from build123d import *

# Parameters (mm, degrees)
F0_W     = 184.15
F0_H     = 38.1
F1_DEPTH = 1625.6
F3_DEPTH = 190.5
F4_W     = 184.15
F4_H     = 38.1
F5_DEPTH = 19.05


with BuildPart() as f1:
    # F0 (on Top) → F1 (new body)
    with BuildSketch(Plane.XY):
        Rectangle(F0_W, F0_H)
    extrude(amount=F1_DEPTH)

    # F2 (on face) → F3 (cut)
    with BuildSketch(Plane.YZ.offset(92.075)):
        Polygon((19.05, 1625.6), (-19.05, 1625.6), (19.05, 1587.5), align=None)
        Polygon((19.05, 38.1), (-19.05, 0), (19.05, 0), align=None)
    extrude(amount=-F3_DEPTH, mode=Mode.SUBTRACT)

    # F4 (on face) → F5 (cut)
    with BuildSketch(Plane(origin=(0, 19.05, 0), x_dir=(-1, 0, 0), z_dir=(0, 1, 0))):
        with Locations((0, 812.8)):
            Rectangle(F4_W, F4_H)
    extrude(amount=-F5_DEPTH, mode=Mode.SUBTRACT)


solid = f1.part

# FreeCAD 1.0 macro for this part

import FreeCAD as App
import Part
import Sketcher
from FreeCAD import Vector
Q = App.Units.Quantity


def add_polygon(sketch, points):
    """Adds a closed chain of lines whose ends are joined by coincident constraints."""
    first, n = sketch.GeometryCount, len(points)
    for a, b in zip(points, points[1:] + points[:1]):
        sketch.addGeometry(Part.LineSegment(App.Vector(*a, 0), App.Vector(*b, 0)), False)
    for i in range(n):
        sketch.addConstraint(Sketcher.Constraint("Coincident", first + i, 2, first + (i + 1) % n, 1))

doc = App.newDocument("Part")
params = doc.addObject("Spreadsheet::Sheet", "Params")
for row, (alias, value) in enumerate([
    ("sketch1_height", "1.5 in"),
    ("sketch1_width", "7.25 in"),
    ("pad1_length", "64 in"),
    ("sketch2_width", "1.5 in"),
    ("pocket1_length", "7.5 in"),
    ("sketch3_height", "1.5 in"),
    ("sketch3_width", "7.25 in"),
    ("pocket2_length", "0.75 in"),
], start=1):
    params.set(f"A{row}", alias)
    params.set(f"B{row}", "=" + value)
    params.setAlias(f"B{row}", alias)

body = doc.addObject("PartDesign::Body", "Body")

sketch1 = doc.addObject("Sketcher::SketchObject", "Sketch")
body.addObject(sketch1)
sketch1.AttachmentSupport = (doc.XY_Plane, [""])
sketch1.MapMode = "FlatFace"
add_polygon(sketch1, [(-92.075, 19.05), (-92.075, -19.05), (92.075, -19.05), (92.075, 19.05)])
sketch1.addConstraint([
    Sketcher.Constraint("Vertical", 0),
    Sketcher.Constraint("Horizontal", 1),
    Sketcher.Constraint("Vertical", 2),
    Sketcher.Constraint("Horizontal", 3),
    Sketcher.Constraint("Symmetric", 0, 2, 2, 2, -1, 1),
    Sketcher.Constraint("DistanceY", 0, 2, 0, 1, Q("1.5 in")),
    Sketcher.Constraint("DistanceX", 1, 1, 1, 2, Q("7.25 in")),
])
sketch1.setExpression("Constraints[9]", "Params.sketch1_height")
sketch1.setExpression("Constraints[10]", "Params.sketch1_width")
pad1 = doc.addObject("PartDesign::Pad", "Pad")
body.addObject(pad1)
pad1.Profile = sketch1
pad1.setExpression("Length", "Params.pad1_length")

sketch2 = doc.addObject("Sketcher::SketchObject", "Sketch001")
body.addObject(sketch2)
sketch2.AttachmentSupport = (doc.YZ_Plane, [""])
sketch2.MapMode = "FlatFace"
sketch2.AttachmentOffset = App.Placement(Vector(0, 0, 3.625 * 25.4), App.Rotation())
add_polygon(sketch2, [(19.05, 1625.6), (-19.05, 1625.6), (19.05, 1587.5)])
add_polygon(sketch2, [(19.05, 38.1), (-19.05, 0), (19.05, 0)])
sketch2.addConstraint([
    Sketcher.Constraint("Horizontal", 0),
    Sketcher.Constraint("Vertical", 2),
    Sketcher.Constraint("Horizontal", 4),
    Sketcher.Constraint("Vertical", 5),
    Sketcher.Constraint("Symmetric", 3, 2, 4, 2, -1, 1),
    Sketcher.Constraint("Perpendicular", 1, 3),
    Sketcher.Constraint("Vertical", 0, 2, 3, 2),
    Sketcher.Constraint("Vertical", 2, 2, 4, 2),
    Sketcher.Constraint("Equal", 4, 2),
    Sketcher.Constraint("DistanceX", 0, 2, 0, 1, Q("1.5 in")),
    Sketcher.Constraint("DistanceY", -1, 1, 0, 2, Q("64 in")),
])
sketch2.setExpression("Constraints[15]", "Params.sketch2_width")
pocket1 = doc.addObject("PartDesign::Pocket", "Pocket")
body.addObject(pocket1)
pocket1.Profile = sketch2
pocket1.setExpression("Length", "Params.pocket1_length")

sketch3 = doc.addObject("Sketcher::SketchObject", "Sketch002")
body.addObject(sketch3)
sketch3.AttachmentSupport = (doc.XZ_Plane, [""])
sketch3.MapMode = "FlatFace"
sketch3.AttachmentOffset = App.Placement(Vector(0, 0, -0.75 * 25.4), App.Rotation())
add_polygon(sketch3, [(92.075, 831.85), (92.075, 793.75), (-92.075, 793.75), (-92.075, 831.85)])
sketch3.addConstraint([
    Sketcher.Constraint("Vertical", 0),
    Sketcher.Constraint("Horizontal", 1),
    Sketcher.Constraint("Vertical", 2),
    Sketcher.Constraint("Horizontal", 3),
    Sketcher.Constraint("DistanceY", 0, 2, 0, 1, Q("1.5 in")),
    Sketcher.Constraint("DistanceX", 1, 2, 1, 1, Q("7.25 in")),
    Sketcher.Constraint("DistanceY", -1, 1, 0, 2, Q("31.25 in")),
    Sketcher.Constraint("DistanceX", -1, 1, 0, 2, Q("3.625 in")),
])
sketch3.setExpression("Constraints[8]", "Params.sketch3_height")
sketch3.setExpression("Constraints[9]", "Params.sketch3_width")
pocket2 = doc.addObject("PartDesign::Pocket", "Pocket001")
body.addObject(pocket2)
pocket2.Profile = sketch3
pocket2.setExpression("Length", "Params.pocket2_length")
pocket2.Reversed = True

doc.recompute()
